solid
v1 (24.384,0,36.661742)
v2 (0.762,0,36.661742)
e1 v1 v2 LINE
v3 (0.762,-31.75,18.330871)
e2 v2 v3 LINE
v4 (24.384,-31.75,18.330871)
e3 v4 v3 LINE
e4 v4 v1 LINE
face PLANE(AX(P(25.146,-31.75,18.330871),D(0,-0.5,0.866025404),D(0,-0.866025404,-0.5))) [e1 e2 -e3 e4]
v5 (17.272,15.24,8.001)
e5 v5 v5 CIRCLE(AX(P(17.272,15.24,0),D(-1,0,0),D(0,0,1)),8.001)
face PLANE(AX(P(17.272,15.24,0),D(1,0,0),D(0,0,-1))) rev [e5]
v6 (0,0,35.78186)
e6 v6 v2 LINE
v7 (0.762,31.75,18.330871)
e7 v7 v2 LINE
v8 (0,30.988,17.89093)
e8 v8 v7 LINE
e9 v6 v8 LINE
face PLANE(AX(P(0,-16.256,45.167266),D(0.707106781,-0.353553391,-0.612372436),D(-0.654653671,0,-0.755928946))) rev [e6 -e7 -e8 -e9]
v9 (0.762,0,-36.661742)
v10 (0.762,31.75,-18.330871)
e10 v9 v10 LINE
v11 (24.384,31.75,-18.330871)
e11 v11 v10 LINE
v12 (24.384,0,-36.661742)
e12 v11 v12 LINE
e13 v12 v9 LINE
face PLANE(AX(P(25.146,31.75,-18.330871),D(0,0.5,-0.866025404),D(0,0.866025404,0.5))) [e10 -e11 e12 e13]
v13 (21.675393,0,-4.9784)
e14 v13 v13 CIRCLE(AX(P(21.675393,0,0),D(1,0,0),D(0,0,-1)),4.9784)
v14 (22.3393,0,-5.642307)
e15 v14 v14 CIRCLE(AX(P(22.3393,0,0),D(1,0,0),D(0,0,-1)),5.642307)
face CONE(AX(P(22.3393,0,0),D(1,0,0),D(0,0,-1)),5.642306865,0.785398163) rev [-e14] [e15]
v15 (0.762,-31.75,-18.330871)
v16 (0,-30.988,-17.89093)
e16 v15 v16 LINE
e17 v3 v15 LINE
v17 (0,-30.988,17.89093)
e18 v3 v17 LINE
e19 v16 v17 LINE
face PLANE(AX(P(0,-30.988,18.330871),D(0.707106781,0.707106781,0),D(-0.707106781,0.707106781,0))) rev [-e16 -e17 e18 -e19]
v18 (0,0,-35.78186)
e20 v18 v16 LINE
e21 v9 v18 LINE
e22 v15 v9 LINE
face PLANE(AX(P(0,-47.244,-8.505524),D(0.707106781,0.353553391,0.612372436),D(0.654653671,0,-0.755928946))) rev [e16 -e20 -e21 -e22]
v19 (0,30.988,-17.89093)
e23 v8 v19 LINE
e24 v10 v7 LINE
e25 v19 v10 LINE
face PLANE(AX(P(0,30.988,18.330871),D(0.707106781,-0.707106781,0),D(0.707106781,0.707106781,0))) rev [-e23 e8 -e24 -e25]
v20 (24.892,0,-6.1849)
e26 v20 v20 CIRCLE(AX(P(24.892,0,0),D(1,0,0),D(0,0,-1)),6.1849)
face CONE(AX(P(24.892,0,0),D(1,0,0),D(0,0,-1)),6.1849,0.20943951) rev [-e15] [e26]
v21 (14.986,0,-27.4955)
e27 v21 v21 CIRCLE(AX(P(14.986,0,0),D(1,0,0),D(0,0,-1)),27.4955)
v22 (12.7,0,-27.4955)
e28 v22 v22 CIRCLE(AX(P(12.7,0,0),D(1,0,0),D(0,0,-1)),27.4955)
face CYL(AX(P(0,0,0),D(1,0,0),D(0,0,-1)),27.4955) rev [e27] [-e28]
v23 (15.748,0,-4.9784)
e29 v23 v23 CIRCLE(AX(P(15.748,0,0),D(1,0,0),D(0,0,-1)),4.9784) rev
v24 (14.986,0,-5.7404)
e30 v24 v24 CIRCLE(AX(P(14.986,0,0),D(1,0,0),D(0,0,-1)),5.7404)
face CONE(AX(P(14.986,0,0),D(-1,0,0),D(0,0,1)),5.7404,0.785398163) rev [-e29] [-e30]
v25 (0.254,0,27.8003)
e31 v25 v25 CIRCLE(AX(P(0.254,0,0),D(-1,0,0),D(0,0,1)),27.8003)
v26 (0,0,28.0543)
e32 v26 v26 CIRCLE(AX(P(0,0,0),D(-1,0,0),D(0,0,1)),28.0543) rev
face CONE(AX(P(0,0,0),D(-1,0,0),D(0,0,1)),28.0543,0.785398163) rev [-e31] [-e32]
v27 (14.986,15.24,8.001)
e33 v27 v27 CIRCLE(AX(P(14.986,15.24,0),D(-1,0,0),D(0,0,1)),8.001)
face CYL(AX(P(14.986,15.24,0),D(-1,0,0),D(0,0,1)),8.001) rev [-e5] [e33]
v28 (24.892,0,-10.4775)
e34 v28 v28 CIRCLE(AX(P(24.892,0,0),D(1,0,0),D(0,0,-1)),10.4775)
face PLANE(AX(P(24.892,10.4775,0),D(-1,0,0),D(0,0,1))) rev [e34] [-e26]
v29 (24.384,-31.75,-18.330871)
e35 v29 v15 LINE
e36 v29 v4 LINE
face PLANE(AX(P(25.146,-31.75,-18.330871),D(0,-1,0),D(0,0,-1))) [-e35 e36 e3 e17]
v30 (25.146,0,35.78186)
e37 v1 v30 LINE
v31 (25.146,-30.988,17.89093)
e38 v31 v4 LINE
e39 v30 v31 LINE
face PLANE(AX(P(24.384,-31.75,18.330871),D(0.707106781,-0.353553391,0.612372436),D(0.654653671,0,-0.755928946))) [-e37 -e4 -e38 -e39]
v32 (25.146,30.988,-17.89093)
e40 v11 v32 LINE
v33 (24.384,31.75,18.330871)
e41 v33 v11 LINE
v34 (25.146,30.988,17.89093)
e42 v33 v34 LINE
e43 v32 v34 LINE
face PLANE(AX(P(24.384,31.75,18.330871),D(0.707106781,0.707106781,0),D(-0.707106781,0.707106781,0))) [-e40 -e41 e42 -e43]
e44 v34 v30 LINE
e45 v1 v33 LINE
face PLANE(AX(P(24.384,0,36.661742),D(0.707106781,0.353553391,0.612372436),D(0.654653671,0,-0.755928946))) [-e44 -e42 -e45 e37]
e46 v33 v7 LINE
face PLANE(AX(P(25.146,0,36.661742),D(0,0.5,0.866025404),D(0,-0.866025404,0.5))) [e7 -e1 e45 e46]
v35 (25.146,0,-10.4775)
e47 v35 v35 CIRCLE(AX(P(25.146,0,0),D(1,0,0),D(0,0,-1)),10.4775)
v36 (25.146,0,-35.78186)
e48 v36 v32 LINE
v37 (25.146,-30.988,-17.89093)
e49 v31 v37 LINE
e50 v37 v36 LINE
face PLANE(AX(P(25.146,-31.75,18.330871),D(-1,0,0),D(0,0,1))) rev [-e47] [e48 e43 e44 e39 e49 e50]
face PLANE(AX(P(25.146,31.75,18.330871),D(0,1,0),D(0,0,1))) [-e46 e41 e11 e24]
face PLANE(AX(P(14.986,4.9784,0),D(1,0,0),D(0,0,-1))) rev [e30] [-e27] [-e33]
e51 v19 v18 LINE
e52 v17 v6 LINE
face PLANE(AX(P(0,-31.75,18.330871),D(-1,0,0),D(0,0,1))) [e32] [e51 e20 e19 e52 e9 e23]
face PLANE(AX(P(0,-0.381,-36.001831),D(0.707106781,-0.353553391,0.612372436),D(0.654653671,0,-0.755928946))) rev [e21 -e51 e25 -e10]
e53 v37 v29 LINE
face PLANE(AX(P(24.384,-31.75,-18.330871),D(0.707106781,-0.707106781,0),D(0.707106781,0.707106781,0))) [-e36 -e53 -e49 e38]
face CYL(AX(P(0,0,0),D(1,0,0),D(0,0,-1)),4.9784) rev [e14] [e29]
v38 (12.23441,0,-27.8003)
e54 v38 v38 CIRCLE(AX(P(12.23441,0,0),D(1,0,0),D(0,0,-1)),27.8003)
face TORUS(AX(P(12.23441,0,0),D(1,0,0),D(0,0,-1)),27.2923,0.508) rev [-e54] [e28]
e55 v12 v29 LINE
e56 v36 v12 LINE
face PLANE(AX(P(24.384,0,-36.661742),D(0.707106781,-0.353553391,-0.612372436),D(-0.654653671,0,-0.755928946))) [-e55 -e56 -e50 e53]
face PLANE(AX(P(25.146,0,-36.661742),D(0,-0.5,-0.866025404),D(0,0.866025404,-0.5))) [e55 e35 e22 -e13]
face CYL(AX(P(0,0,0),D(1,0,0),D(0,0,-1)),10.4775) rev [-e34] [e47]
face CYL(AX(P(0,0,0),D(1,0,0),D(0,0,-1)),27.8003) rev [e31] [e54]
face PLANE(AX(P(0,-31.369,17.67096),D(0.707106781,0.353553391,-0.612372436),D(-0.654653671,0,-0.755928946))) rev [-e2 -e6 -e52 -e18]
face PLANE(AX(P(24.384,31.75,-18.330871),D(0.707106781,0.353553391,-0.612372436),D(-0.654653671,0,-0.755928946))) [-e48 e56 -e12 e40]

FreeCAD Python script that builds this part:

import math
import FreeCAD as App
import Part
import Sketcher

V = App.Vector
Q = App.Units.Quantity


def edges_at(feature, points):
    """Names of the edges that pass closest to the given points."""
    edges = feature.Shape.Edges
    near = lambda p: min(range(len(edges)), key=lambda i: edges[i].distToShape(Part.Vertex(*p))[0])
    return sorted({f"Edge{near(p) + 1}" for p in points})

doc = App.newDocument("Part")
params = doc.addObject("Spreadsheet::Sheet", "Params")
for row, (alias, value) in enumerate([
    ("pad1_length", "0.99 in"),
    ("sketch2_radius", "0.02 in"),
    ("sketch2_width", "0.99 in"),
    ("sketch2_width2", "0.01 in"),
    ("sketch2_width3", "0.09 in"),
    ("sketch2_height", "0.169 in"),
    ("groove_angle", "360 deg"),
    ("sketch3_diameter", "0.63 in"),
    ("hole_diameter", "0.63 in"),
    ("hole_depth", "0.09 in"),
    ("chamfer_size", "0.01 in"),
    ("chamfer2_size", "0.03 in"),
    ("chamfer3_size", "0.03 in"),
    ("chamfer4_size", "0.03 in"),
], start=1):
    params.set(f"A{row}", alias)
    params.set(f"B{row}", "=" + value)
    params.setAlias(f"B{row}", alias)

body = doc.addObject("PartDesign::Body", "Body")

sketch1 = body.newObject("Sketcher::SketchObject", "Sketch")
sketch1.AttachmentSupport = (doc.getObject("YZ_Plane"), [""])
sketch1.MapMode = "FlatFace"
sketch1.addGeometry([
    Part.LineSegment(V(-32, 18, 0), V(0, 37, 0)),
    Part.LineSegment(V(0, 37, 0), V(32, 18, 0)),
    Part.LineSegment(V(32, 18, 0), V(32, -18, 0)),
    Part.LineSegment(V(32, -18, 0), V(0, -37, 0)),
    Part.LineSegment(V(0, -37, 0), V(-32, -18, 0)),
    Part.LineSegment(V(-32, -18, 0), V(-32, 18, 0)),
], False)
sketch1.addConstraint([
    Sketcher.Constraint("Coincident", 0, 2, 1, 1),
    Sketcher.Constraint("Coincident", 1, 2, 2, 1),
    Sketcher.Constraint("Coincident", 2, 2, 3, 1),
    Sketcher.Constraint("Coincident", 3, 2, 4, 1),
    Sketcher.Constraint("Coincident", 4, 2, 5, 1),
    Sketcher.Constraint("Coincident", 5, 2, 0, 1),
    Sketcher.Constraint("Vertical", 2),
    Sketcher.Constraint("Vertical", 5),
    Sketcher.Constraint("Symmetric", 0, 2, 3, 2, -1, 1),
    Sketcher.Constraint("Symmetric", 1, 2, 4, 2, -1, 1),
    Sketcher.Constraint("PointOnObject", 0, 2, -2),
    Sketcher.Constraint("Parallel", 0, 3),
    Sketcher.Constraint("Horizontal", 2, 2, 4, 2),
    Sketcher.Constraint("Angle", 0, Q("30 deg")),
    Sketcher.Constraint("DistanceX", 4, 2, 2, 2, Q("2.5 in")),
    Sketcher.Constraint("DistanceY", 2, 2, 2, 1, Q("36.661742 mm")),
])
pad1 = body.newObject("PartDesign::Pad", "Pad")
pad1.Profile = sketch1
pad1.setExpression("Length", "Params.pad1_length")

sketch2 = body.newObject("Sketcher::SketchObject", "Sketch001")
sketch2.AttachmentSupport = (doc.getObject("XY_Plane"), [""])
sketch2.MapMode = "FlatFace"
sketch2.addGeometry([
    Part.LineSegment(V(0, 27.8, 0), V(0, 0, 0)),
    Part.LineSegment(V(0, 0, 0), V(25.15, 0, 0)),
    Part.LineSegment(V(25.15, 0, 0), V(25.15, 10.48, 0)),
    Part.LineSegment(V(25.15, 10.48, 0), V(24.89, 10.48, 0)),
    Part.LineSegment(V(24.89, 10.48, 0), V(24.89, 6.18, 0)),
    Part.LineSegment(V(24.89, 6.18, 0), V(22.34, 5.64, 0)),
    Part.LineSegment(V(22.34, 5.64, 0), V(21.68, 4.98, 0)),
    Part.LineSegment(V(21.68, 4.98, 0), V(14.99, 4.98, 0)),
    Part.LineSegment(V(14.99, 4.98, 0), V(14.99, 27.5, 0)),
    Part.LineSegment(V(14.99, 27.5, 0), V(12.7, 27.5, 0)),
    Part.ArcOfCircle(Part.Circle(V(12.23, 27.29, 0), V(0, 0, 1), 0.51), math.radians(24), math.radians(90)),
    Part.LineSegment(V(12.23, 27.8, 0), V(0, 27.8, 0)),
], False)
sketch2.addConstraint([
    Sketcher.Constraint("Coincident", 0, 2, 1, 1),
    Sketcher.Constraint("Coincident", 1, 2, 2, 1),
    Sketcher.Constraint("Coincident", 2, 2, 3, 1),
    Sketcher.Constraint("Coincident", 3, 2, 4, 1),
    Sketcher.Constraint("Coincident", 4, 2, 5, 1),
    Sketcher.Constraint("Coincident", 5, 2, 6, 1),
    Sketcher.Constraint("Coincident", 6, 2, 7, 1),
    Sketcher.Constraint("Coincident", 7, 2, 8, 1),
    Sketcher.Constraint("Coincident", 8, 2, 9, 1),
    Sketcher.Constraint("Coincident", 9, 2, 10, 1),
    Sketcher.Constraint("Tangent", 10, 2, 11, 1),
    Sketcher.Constraint("Coincident", 11, 2, 0, 1),
    Sketcher.Constraint("Vertical", 0),
    Sketcher.Constraint("Horizontal", 1),
    Sketcher.Constraint("Vertical", 2),
    Sketcher.Constraint("Horizontal", 3),
    Sketcher.Constraint("Vertical", 4),
    Sketcher.Constraint("Horizontal", 7),
    Sketcher.Constraint("Vertical", 8),
    Sketcher.Constraint("Horizontal", 9),
    Sketcher.Constraint("Horizontal", 11),
    Sketcher.Constraint("Coincident", 0, 2, -1, 1),
    Sketcher.Constraint("Radius", 10, Q("0.02 in")),
    Sketcher.Constraint("Angle", 5, Q("-168 deg")),
    Sketcher.Constraint("Angle", 6, Q("-135 deg")),
    Sketcher.Constraint("DistanceX", 1, 1, 1, 2, Q("0.99 in")),
    Sketcher.Constraint("DistanceX", 3, 2, 3, 1, Q("0.01 in")),
    Sketcher.Constraint("DistanceX", 9, 2, 9, 1, Q("0.09 in")),
    Sketcher.Constraint("DistanceX", -1, 1, 9, 2, Q("0.5 in")),
    Sketcher.Constraint("DistanceY", 4, 2, 4, 1, Q("0.169 in")),
    Sketcher.Constraint("DistanceY", 3, 2, 8, 2, Q("0.67 in")),
    Sketcher.Constraint("DistanceY", 0, 2, 0, 1, Q("1.0945 in")),
    Sketcher.Constraint("DistanceY", 2, 1, 2, 2, Q("0.4125 in")),
    Sketcher.Constraint("DistanceY", 8, 1, 8, 2, Q("0.8865 in")),
    Sketcher.Constraint("DistanceX", -1, 1, 5, 2, Q("0.8795 in")),
])
sketch2.setExpression("Constraints[22]", "Params.sketch2_radius")
sketch2.setExpression("Constraints[25]", "Params.sketch2_width")
sketch2.setExpression("Constraints[26]", "Params.sketch2_width2")
sketch2.setExpression("Constraints[27]", "Params.sketch2_width3")
sketch2.setExpression("Constraints[29]", "Params.sketch2_height")
groove = body.newObject("PartDesign::Groove", "Groove")
groove.Profile = sketch2
groove.ReferenceAxis = (sketch2, ["H_Axis"])
groove.setExpression("Angle", "Params.groove_angle")

sketch3 = body.newObject("Sketcher::SketchObject", "Sketch002")
sketch3.AttachmentSupport = (doc.getObject("YZ_Plane"), [""])
sketch3.MapMode = "FlatFace"
sketch3.AttachmentOffset = App.Placement(V(0, 0, 0.59 * 25.4), App.Rotation())
sketch3.addGeometry(Part.Circle(V(15, 0, 0), V(0, 0, 1), 8), False)
sketch3.addConstraint([
    Sketcher.Constraint("PointOnObject", 0, 3, -1),
    Sketcher.Constraint("Diameter", 0, Q("0.63 in")),
    Sketcher.Constraint("DistanceX", -1, 1, 0, 3, Q("0.6 in")),
])
sketch3.setExpression("Constraints[1]", "Params.sketch3_diameter")
doc.recompute()
hole = body.newObject("PartDesign::Hole", "Hole")
hole.Profile = sketch3
hole.ThreadType = "None"
hole.setExpression("Diameter", "Params.hole_diameter")
hole.DepthType = "Dimension"
hole.setExpression("Depth", "Params.hole_depth")
hole.DrillPoint = "Flat"
hole.Reversed = True
doc.recompute()

chamfer = body.newObject("PartDesign::Chamfer", "Chamfer")
chamfer.Base = (hole, edges_at(hole, [(0, 0, 27.8)]))
chamfer.setExpression("Size", "Params.chamfer_size")
doc.recompute()

chamfer2 = body.newObject("PartDesign::Chamfer", "Chamfer001")
chamfer2.Base = (chamfer, edges_at(chamfer, [(14.986, 0, 4.978)]))
chamfer2.setExpression("Size", "Params.chamfer2_size")
doc.recompute()

chamfer3 = body.newObject("PartDesign::Chamfer", "Chamfer002")
chamfer3.Base = (chamfer2, edges_at(chamfer2, [
    (0, -15.875, -27.496),
    (0, 15.875, -27.496),
    (0, 31.75, 0),
    (0, 15.875, 27.496),
    (0, -15.875, 27.496),
    (0, -31.75, 0),
]))
chamfer3.setExpression("Size", "Params.chamfer3_size")
doc.recompute()

chamfer4 = body.newObject("PartDesign::Chamfer", "Chamfer003")
chamfer4.Base = (chamfer3, edges_at(chamfer3, [
    (25.146, 15.875, 27.496),
    (25.146, 31.75, 0),
    (25.146, 15.875, -27.496),
    (25.146, -15.875, -27.496),
    (25.146, -31.75, 0),
    (25.146, -15.875, 27.496),
]))
chamfer4.setExpression("Size", "Params.chamfer4_size")

doc.recompute()
